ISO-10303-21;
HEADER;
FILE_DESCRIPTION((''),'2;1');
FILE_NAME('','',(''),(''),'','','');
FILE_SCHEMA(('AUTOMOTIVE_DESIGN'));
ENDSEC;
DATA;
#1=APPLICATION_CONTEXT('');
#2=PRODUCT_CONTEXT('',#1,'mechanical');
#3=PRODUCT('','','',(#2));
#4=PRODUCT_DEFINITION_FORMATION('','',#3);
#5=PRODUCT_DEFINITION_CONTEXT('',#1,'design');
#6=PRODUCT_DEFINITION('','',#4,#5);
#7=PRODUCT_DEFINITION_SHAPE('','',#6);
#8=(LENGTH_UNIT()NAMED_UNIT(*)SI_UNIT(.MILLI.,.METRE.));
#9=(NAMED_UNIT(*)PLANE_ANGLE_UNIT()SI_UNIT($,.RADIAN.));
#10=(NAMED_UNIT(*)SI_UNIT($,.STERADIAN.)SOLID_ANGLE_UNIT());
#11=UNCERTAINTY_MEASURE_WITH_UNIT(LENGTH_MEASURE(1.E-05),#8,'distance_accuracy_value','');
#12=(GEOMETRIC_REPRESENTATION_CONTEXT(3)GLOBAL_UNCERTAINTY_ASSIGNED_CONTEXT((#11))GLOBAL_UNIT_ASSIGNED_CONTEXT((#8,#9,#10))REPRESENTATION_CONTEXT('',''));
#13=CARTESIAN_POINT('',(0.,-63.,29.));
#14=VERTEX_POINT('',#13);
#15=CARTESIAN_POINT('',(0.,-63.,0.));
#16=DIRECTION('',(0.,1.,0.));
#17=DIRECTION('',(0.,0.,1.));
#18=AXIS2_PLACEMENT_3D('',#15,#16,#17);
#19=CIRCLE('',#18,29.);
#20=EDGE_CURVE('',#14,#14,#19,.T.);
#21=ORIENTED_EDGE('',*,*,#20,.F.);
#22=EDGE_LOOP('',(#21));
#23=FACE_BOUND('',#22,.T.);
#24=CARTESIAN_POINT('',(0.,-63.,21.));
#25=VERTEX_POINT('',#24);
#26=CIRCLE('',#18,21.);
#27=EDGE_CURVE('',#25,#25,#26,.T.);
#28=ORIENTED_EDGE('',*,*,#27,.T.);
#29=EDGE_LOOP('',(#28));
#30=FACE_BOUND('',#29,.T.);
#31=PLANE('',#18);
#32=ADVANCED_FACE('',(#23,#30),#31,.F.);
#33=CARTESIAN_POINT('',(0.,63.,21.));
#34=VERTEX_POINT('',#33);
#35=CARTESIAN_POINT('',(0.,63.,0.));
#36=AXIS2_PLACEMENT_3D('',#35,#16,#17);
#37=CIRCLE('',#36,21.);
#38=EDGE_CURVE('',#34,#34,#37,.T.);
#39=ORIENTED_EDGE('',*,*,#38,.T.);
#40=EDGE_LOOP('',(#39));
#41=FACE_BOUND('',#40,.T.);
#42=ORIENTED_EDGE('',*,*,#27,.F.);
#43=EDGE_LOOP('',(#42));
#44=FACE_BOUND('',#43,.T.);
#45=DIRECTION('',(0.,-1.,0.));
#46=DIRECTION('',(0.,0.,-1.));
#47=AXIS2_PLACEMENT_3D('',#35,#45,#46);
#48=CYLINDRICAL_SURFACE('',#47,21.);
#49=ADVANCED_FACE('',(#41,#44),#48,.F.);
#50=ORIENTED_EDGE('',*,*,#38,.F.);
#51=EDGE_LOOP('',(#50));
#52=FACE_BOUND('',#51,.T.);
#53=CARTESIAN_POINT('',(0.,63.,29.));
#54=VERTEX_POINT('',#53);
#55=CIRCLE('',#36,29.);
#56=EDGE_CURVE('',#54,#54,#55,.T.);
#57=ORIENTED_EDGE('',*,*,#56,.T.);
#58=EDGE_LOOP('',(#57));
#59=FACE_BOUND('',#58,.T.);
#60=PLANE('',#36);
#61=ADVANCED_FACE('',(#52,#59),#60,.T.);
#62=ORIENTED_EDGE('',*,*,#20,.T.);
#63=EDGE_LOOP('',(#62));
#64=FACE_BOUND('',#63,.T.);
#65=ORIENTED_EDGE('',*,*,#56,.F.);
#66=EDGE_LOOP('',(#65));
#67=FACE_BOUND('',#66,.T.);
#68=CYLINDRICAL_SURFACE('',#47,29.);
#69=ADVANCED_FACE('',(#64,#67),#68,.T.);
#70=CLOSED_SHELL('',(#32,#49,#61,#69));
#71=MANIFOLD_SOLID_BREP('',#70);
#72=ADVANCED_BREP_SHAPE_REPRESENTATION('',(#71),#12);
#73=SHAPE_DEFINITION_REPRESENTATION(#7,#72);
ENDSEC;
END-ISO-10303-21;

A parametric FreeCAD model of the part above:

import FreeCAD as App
import Part
import Sketcher
from FreeCAD import Vector
Q = App.Units.Quantity

doc = App.newDocument("Part")
body = doc.addObject("PartDesign::Body", "Body")

sketch1 = body.newObject("Sketcher::SketchObject", "Sketch")
sketch1.AttachmentSupport = (doc.getObject("XZ_Plane"), [""])
sketch1.MapMode = "FlatFace"
sketch1.addGeometry(Part.Circle(Vector(0, 0, 0), Vector(0, 0, 1), 29), False)
sketch1.addGeometry(Part.Circle(Vector(0, 0, 0), Vector(0, 0, 1), 21), False)
sketch1.addConstraint(Sketcher.Constraint("Coincident", 0, 3, -1, 1))
sketch1.addConstraint(Sketcher.Constraint("Coincident", 1, 3, -1, 1))
sketch1.addConstraint(Sketcher.Constraint("Diameter", 0, Q("58 mm")))
sketch1.addConstraint(Sketcher.Constraint("Diameter", 1, Q("42 mm")))
pad1 = body.newObject("PartDesign::Pad", "Pad")
pad1.Profile = sketch1
pad1.Length = 126
pad1.Midplane = True

doc.recompute()
